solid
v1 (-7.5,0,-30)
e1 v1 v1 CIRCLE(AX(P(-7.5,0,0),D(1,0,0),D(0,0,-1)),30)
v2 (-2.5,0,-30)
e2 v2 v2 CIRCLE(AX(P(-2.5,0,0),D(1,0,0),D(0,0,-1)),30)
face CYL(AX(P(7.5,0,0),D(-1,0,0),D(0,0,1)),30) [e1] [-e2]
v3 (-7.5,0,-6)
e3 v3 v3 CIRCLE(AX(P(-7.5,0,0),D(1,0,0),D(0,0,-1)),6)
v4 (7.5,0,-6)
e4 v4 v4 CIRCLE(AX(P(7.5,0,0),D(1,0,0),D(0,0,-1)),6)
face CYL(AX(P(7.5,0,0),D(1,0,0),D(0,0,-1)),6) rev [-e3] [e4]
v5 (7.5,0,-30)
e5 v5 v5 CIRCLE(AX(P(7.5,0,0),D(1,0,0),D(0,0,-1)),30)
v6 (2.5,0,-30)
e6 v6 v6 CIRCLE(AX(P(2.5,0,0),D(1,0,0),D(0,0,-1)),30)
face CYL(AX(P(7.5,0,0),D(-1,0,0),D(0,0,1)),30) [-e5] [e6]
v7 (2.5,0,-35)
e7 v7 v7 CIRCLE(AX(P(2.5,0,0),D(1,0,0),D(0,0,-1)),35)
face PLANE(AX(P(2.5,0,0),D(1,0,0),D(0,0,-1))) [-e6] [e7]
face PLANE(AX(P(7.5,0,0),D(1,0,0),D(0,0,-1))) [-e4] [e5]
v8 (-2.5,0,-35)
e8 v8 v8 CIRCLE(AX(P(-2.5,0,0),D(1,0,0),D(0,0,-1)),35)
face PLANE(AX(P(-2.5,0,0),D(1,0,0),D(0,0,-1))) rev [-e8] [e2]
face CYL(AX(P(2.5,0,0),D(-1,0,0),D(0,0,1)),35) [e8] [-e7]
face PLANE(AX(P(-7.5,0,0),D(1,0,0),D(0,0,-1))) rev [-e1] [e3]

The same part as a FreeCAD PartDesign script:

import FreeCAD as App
import Part
import Sketcher

doc = App.newDocument("Part")
params = doc.addObject("Spreadsheet::Sheet", "Params")
for row, (alias, value) in enumerate([
    ("sketch1_diameter", "60 mm"),
    ("pad1_length", "15 mm"),
    ("sketch2_diameter", "70 mm"),
    ("pad2_length", "5 mm"),
    ("sketch3_diameter", "12 mm"),
    ("hole_diameter", "12 mm"),
], start=1):
    params.set(f"A{row}", alias)
    params.set(f"B{row}", "=" + value)
    params.setAlias(f"B{row}", alias)

body = doc.addObject("PartDesign::Body", "Body")

sketch1 = body.newObject("Sketcher::SketchObject", "Sketch")
sketch1.AttachmentSupport = (doc.getObject("YZ_Plane"), [""])
sketch1.MapMode = "FlatFace"
sketch1.addGeometry(Part.Circle(App.Vector(0, 0, 0), App.Vector(0, 0, 1), 30), False)
sketch1.addConstraint(Sketcher.Constraint("Coincident", 0, 3, -1, 1))
sketch1.addConstraint(Sketcher.Constraint("Diameter", 0, 60.0))
sketch1.setExpression("Constraints[1]", "Params.sketch1_diameter")
pad1 = body.newObject("PartDesign::Pad", "Pad")
pad1.Profile = sketch1
pad1.setExpression("Length", "Params.pad1_length")
pad1.Midplane = True

sketch2 = body.newObject("Sketcher::SketchObject", "Sketch001")
sketch2.AttachmentSupport = (doc.getObject("YZ_Plane"), [""])
sketch2.MapMode = "FlatFace"
sketch2.addGeometry(Part.Circle(App.Vector(0, 0, 0), App.Vector(0, 0, 1), 35), False)
sketch2.addConstraint(Sketcher.Constraint("Coincident", 0, 3, -1, 1))
sketch2.addConstraint(Sketcher.Constraint("Diameter", 0, 70.0))
sketch2.setExpression("Constraints[1]", "Params.sketch2_diameter")
pad2 = body.newObject("PartDesign::Pad", "Pad001")
pad2.Profile = sketch2
pad2.setExpression("Length", "Params.pad2_length")
pad2.Midplane = True

sketch3 = body.newObject("Sketcher::SketchObject", "Sketch002")
sketch3.AttachmentSupport = (doc.getObject("YZ_Plane"), [""])
sketch3.MapMode = "FlatFace"
sketch3.AttachmentOffset = App.Placement(App.Vector(0, 0, 7.5), App.Rotation())
sketch3.addGeometry(Part.Circle(App.Vector(0, 0, 0), App.Vector(0, 0, 1), 6), False)
sketch3.addConstraint(Sketcher.Constraint("Coincident", 0, 3, -1, 1))
sketch3.addConstraint(Sketcher.Constraint("Diameter", 0, 12.0))
sketch3.setExpression("Constraints[1]", "Params.sketch3_diameter")
doc.recompute()
hole = body.newObject("PartDesign::Hole", "Hole")
hole.Profile = sketch3
hole.ThreadType = "None"
hole.setExpression("Diameter", "Params.hole_diameter")
hole.DepthType = "ThroughAll"

doc.recompute()
